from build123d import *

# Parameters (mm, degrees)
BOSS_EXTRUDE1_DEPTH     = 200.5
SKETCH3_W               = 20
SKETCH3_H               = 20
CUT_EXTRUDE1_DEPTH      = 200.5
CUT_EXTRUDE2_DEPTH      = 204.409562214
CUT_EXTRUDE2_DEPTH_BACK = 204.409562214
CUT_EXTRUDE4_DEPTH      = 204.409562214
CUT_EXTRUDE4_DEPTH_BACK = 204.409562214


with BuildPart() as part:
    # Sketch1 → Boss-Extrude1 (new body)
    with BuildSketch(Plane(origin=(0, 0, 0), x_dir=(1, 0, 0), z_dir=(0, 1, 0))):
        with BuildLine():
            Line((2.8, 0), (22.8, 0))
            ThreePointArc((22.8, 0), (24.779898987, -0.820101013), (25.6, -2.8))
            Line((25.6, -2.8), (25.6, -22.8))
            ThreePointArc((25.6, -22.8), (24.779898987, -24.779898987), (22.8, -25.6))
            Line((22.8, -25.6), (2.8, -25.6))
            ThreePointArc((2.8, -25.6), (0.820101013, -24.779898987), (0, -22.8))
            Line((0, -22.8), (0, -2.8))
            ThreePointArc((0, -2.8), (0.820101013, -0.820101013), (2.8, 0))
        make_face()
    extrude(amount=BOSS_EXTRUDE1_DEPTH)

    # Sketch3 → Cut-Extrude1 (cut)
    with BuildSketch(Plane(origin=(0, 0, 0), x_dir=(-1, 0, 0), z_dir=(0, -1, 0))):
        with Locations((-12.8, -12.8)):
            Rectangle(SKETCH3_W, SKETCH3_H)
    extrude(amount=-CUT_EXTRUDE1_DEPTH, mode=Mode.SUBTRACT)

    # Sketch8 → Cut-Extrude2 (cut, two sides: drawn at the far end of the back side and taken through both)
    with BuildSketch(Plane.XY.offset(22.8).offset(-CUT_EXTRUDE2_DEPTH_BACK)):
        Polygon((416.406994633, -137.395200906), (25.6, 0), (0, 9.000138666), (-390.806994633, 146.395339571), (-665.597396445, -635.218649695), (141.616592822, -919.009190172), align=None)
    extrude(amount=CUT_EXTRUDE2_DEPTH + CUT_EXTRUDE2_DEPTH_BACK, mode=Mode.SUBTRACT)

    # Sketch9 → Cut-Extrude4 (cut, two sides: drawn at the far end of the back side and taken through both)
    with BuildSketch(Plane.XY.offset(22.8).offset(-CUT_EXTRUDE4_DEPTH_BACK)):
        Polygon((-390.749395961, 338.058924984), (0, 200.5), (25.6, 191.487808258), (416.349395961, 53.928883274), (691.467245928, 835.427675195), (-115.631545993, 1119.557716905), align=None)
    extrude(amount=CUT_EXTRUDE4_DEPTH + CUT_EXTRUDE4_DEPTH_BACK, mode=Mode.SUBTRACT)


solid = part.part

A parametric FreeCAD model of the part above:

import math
import FreeCAD as App
import Part
import Sketcher

V = App.Vector
Q = App.Units.Quantity


def add_polygon(sketch, points):
    """Adds a closed chain of lines whose ends are joined by coincident constraints."""
    first, n = sketch.GeometryCount, len(points)
    for a, b in zip(points, points[1:] + points[:1]):
        sketch.addGeometry(Part.LineSegment(App.Vector(*a, 0), App.Vector(*b, 0)), False)
    for i in range(n):
        sketch.addConstraint(Sketcher.Constraint("Coincident", first + i, 2, first + (i + 1) % n, 1))

doc = App.newDocument("Part")
body = doc.addObject("PartDesign::Body", "Body")

# Sketch on XZ plane
sketch1 = body.newObject("Sketcher::SketchObject", "Sketch")
sketch1.AttachmentSupport = (doc.getObject("XZ_Plane"), [""])
sketch1.MapMode = "FlatFace"
sketch1.addGeometry([
    Part.LineSegment(V(22.8, 0, 0), V(2.8, 0, 0)),  # 0
    Part.ArcOfCircle(Part.Circle(V(2.8, 2.8, 0), V(0, 0, 1), 2.8), math.radians(-180), math.radians(-90)),  # 1
    Part.LineSegment(V(0, 2.8, 0), V(0, 22.8, 0)),  # 2
    Part.ArcOfCircle(Part.Circle(V(2.8, 22.8, 0), V(0, 0, 1), 2.8), math.radians(90), math.radians(180)),  # 3
    Part.LineSegment(V(2.8, 25.6, 0), V(22.8, 25.6, 0)),  # 4
    Part.ArcOfCircle(Part.Circle(V(22.8, 22.8, 0), V(0, 0, 1), 2.8), math.radians(0), math.radians(90)),  # 5
    Part.LineSegment(V(25.6, 22.8, 0), V(25.6, 2.8, 0)),  # 6
    Part.ArcOfCircle(Part.Circle(V(22.8, 2.8, 0), V(0, 0, 1), 2.8), math.radians(-90), math.radians(0)),  # 7
], False)
sketch1.addConstraint([
    Sketcher.Constraint("Tangent", 0, 2, 1, 2),
    Sketcher.Constraint("Tangent", 1, 1, 2, 1),
    Sketcher.Constraint("Tangent", 2, 2, 3, 2),
    Sketcher.Constraint("Tangent", 3, 1, 4, 1),
    Sketcher.Constraint("Tangent", 4, 2, 5, 2),
    Sketcher.Constraint("Tangent", 5, 1, 6, 1),
    Sketcher.Constraint("Tangent", 6, 2, 7, 2),
    Sketcher.Constraint("Tangent", 7, 1, 0, 1),
    Sketcher.Constraint("Horizontal", 0),
    Sketcher.Constraint("Vertical", 2),
    Sketcher.Constraint("Horizontal", 4),
    Sketcher.Constraint("Vertical", 6),
    Sketcher.Constraint("Equal", 1, 3),
    Sketcher.Constraint("Equal", 3, 5),
    Sketcher.Constraint("Equal", 5, 7),
    Sketcher.Constraint("PointOnObject", 0, 2, -1),
    Sketcher.Constraint("PointOnObject", 1, 1, -2),
    Sketcher.Constraint("Equal", 4, 2),
    Sketcher.Constraint("Radius", 1, Q("2.8 mm")),
    Sketcher.Constraint("DistanceX", 0, 2, 0, 1, Q("20 mm")),
])
pad1 = body.newObject("PartDesign::Pad", "Pad")
pad1.Profile = sketch1
pad1.Length = 200.5
pad1.Reversed = True

# Sketch on XZ plane
sketch2 = body.newObject("Sketcher::SketchObject", "Sketch001")
sketch2.AttachmentSupport = (doc.getObject("XZ_Plane"), [""])
sketch2.MapMode = "FlatFace"
add_polygon(sketch2, [(22.8, 2.8), (22.8, 22.8), (2.8, 22.8), (2.8, 2.8)])  # lines 0-3
sketch2.addConstraint([
    Sketcher.Constraint("Vertical", 0),
    Sketcher.Constraint("Horizontal", 1),
    Sketcher.Constraint("Vertical", 2),
    Sketcher.Constraint("Horizontal", 3),
    Sketcher.Constraint("Equal", 3, 0),
    Sketcher.Constraint("DistanceX", 1, 2, 1, 1, Q("20 mm")),
    Sketcher.Constraint("DistanceX", -1, 1, 0, 2, Q("22.8 mm")),
    Sketcher.Constraint("DistanceY", -1, 1, 0, 2, Q("22.8 mm")),
])
pocket1 = body.newObject("PartDesign::Pocket", "Pocket")
pocket1.Profile = sketch2
pocket1.Length = 200.5

# Sketch on XY plane
sketch3 = body.newObject("Sketcher::SketchObject", "Sketch002")
sketch3.AttachmentSupport = (doc.getObject("XY_Plane"), [""])
sketch3.MapMode = "FlatFace"
sketch3.AttachmentOffset = App.Placement(V(0, 0, 22.8), App.Rotation())
add_polygon(sketch3, [(416.406995, -137.395201), (25.6, 0), (0, 9.000139), (-390.806995, 146.39534), (-665.597396, -635.21865), (141.616593, -919.00919)])  # lines 0-5
sketch3.addConstraint([
    Sketcher.Constraint("PointOnObject", 0, 2, -1),
    Sketcher.Constraint("PointOnObject", 1, 2, -2),
    Sketcher.Constraint("Parallel", 0, 1),
    Sketcher.Constraint("Parallel", 1, 2),
    Sketcher.Constraint("Perpendicular", 2, 3),
    Sketcher.Constraint("Perpendicular", 3, 4),
    Sketcher.Constraint("Perpendicular", 4, 5),
    Sketcher.Constraint("Equal", 0, 2),
    Sketcher.Constraint("DistanceX", -1, 1, 0, 2, Q("25.6 mm")),
    Sketcher.Constraint("Distance", 1, Q("27.136 mm")),
    Sketcher.Constraint("DistanceY", 5, 2, -1, 1, Q("137.395201 mm")),
    Sketcher.Constraint("DistanceX", 3, 2, 2, 2, Q("274.790402 mm")),
])
pocket2 = body.newObject("PartDesign::Pocket", "Pocket001")
pocket2.Profile = sketch3
pocket2.Type = "ThroughAll"
pocket2.Midplane = True

# Sketch on XY plane
sketch4 = body.newObject("Sketcher::SketchObject", "Sketch003")
sketch4.AttachmentSupport = (doc.getObject("XY_Plane"), [""])
sketch4.MapMode = "FlatFace"
sketch4.AttachmentOffset = App.Placement(V(0, 0, 22.8), App.Rotation())
add_polygon(sketch4, [(-390.749396, 338.058925), (0, 200.5), (25.6, 191.487808), (416.349396, 53.928883), (691.467246, 835.427675), (-115.631546, 1119.557717)])  # lines 0-5
sketch4.addConstraint([
    Sketcher.Constraint("PointOnObject", 0, 2, -2),
    Sketcher.Constraint("Parallel", 0, 1),
    Sketcher.Constraint("Parallel", 1, 2),
    Sketcher.Constraint("Perpendicular", 2, 3),
    Sketcher.Constraint("Perpendicular", 3, 4),
    Sketcher.Constraint("Perpendicular", 4, 5),
    Sketcher.Constraint("Equal", 0, 2),
    Sketcher.Constraint("DistanceY", -1, 1, 0, 2, Q("200.5 mm")),
    Sketcher.Constraint("DistanceX", -1, 1, 1, 2, Q("25.6 mm")),
    Sketcher.Constraint("Distance", 1, Q("27.14 mm")),
    Sketcher.Constraint("Distance", 3, Q("828.510829 mm")),
    Sketcher.Constraint("Distance", 4, Q("855.650829 mm")),
])
pocket3 = body.newObject("PartDesign::Pocket", "Pocket002")
pocket3.Profile = sketch4
pocket3.Type = "ThroughAll"
pocket3.Midplane = True

doc.recompute()
